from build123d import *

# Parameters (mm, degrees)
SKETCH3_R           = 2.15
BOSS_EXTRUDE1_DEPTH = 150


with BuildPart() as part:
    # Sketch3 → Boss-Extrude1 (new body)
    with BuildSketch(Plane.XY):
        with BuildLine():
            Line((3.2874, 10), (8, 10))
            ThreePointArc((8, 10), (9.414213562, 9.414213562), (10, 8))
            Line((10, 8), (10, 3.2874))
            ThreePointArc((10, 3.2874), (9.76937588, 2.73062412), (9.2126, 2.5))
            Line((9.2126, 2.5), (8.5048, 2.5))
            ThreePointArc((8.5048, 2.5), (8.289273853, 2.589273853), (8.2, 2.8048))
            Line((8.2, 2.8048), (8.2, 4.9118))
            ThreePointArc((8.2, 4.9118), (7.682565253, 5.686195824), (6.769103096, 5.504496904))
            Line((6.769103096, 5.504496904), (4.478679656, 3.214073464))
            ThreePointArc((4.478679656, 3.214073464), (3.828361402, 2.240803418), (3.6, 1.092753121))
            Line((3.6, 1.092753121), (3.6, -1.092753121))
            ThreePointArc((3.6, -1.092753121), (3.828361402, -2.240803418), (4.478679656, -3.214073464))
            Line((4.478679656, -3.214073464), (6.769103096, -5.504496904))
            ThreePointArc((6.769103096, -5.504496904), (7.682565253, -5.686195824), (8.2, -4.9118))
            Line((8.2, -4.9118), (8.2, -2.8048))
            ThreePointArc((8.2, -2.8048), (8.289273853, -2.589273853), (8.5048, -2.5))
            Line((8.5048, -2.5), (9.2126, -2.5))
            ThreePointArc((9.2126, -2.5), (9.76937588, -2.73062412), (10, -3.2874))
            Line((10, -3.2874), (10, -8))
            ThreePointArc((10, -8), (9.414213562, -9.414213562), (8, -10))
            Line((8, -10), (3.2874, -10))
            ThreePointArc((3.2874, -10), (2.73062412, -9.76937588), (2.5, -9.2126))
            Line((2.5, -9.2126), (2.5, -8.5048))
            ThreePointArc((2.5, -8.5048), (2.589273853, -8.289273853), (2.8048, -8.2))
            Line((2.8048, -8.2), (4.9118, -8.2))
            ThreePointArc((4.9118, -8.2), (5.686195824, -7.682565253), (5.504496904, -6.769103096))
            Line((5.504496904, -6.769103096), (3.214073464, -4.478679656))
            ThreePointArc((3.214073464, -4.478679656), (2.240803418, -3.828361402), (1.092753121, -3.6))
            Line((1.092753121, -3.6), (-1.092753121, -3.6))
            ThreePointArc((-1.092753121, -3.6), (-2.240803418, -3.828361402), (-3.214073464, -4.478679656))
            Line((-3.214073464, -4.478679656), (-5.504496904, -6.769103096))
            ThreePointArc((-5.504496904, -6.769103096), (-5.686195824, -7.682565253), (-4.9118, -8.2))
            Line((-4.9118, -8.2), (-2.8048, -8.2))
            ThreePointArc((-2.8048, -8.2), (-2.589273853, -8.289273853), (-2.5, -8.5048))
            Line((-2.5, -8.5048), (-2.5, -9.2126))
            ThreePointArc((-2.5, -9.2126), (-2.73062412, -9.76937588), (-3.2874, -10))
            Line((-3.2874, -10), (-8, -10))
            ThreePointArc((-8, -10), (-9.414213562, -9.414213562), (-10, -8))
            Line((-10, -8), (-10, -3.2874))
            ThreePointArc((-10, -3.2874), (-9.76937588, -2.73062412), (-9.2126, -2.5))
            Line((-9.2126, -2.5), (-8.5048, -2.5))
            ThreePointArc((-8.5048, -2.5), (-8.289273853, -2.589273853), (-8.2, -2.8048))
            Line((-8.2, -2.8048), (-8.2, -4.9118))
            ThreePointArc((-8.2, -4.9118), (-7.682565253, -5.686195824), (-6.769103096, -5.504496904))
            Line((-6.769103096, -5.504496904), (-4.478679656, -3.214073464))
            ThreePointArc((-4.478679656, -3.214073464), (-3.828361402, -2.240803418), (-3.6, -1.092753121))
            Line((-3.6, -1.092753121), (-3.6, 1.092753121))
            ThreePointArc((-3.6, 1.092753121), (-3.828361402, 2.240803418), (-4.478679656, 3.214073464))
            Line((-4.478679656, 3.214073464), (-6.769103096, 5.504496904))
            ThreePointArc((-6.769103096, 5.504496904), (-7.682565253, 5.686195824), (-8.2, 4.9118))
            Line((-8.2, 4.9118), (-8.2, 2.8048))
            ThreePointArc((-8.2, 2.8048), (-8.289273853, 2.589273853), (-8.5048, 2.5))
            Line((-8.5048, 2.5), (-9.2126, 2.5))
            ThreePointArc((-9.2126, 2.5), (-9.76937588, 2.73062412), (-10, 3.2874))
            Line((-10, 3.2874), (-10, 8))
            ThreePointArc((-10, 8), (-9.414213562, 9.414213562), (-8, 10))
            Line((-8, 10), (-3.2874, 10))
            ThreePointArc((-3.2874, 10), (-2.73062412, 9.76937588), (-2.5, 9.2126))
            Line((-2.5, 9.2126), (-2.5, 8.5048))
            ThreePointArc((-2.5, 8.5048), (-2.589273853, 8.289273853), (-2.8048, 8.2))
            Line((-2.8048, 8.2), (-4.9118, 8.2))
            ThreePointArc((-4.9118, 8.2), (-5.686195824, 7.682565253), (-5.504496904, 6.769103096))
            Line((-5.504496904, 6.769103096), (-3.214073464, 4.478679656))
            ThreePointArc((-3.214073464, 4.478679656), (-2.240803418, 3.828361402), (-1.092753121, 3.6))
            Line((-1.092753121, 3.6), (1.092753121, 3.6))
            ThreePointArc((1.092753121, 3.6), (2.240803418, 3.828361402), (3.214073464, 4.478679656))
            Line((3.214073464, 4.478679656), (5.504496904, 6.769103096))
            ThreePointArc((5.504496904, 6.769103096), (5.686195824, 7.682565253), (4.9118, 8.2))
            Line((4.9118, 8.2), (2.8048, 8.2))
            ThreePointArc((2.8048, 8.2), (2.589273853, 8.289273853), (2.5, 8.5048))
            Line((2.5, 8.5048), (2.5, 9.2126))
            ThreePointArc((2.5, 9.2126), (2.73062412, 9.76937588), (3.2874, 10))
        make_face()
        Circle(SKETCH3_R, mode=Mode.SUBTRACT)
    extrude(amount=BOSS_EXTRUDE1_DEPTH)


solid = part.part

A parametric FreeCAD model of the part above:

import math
import FreeCAD as App
import Part
import Sketcher

V = App.Vector

doc = App.newDocument("Part")
body = doc.addObject("PartDesign::Body", "Body")

# Sketch on XY plane
sketch1 = body.newObject("Sketcher::SketchObject", "Sketch")
sketch1.AttachmentSupport = (doc.getObject("XY_Plane"), [""])
sketch1.MapMode = "FlatFace"
sketch1.addGeometry([
    Part.LineSegment(V(8, 10, 0), V(3.29, 10, 0)),  # 0
    Part.ArcOfCircle(Part.Circle(V(3.29, 9.21, 0), V(0, 0, 1), 0.79), math.radians(90), math.radians(180)),  # 1
    Part.LineSegment(V(2.5, 9.21, 0), V(2.5, 8.5, 0)),  # 2
    Part.ArcOfCircle(Part.Circle(V(2.8, 8.5, 0), V(0, 0, 1), 0.3), math.radians(180), math.radians(270)),  # 3
    Part.LineSegment(V(2.8, 8.2, 0), V(4.91, 8.2, 0)),  # 4
    Part.ArcOfCircle(Part.Circle(V(4.91, 7.36, 0), V(0, 0, 1), 0.84), math.radians(-45), math.radians(90)),  # 5
    Part.LineSegment(V(5.5, 6.77, 0), V(3.21, 4.48, 0)),  # 6
    Part.ArcOfCircle(Part.Circle(V(1.09, 6.6, 0), V(0, 0, 1), 3), math.radians(-90), math.radians(-45)),  # 7
    Part.LineSegment(V(1.09, 3.6, 0), V(-1.09, 3.6, 0)),  # 8
    Part.ArcOfCircle(Part.Circle(V(-1.09, 6.6, 0), V(0, 0, 1), 3), math.radians(-135), math.radians(-90)),  # 9
    Part.LineSegment(V(-3.21, 4.48, 0), V(-5.5, 6.77, 0)),  # 10
    Part.ArcOfCircle(Part.Circle(V(-4.91, 7.36, 0), V(0, 0, 1), 0.84), math.radians(90), math.radians(225)),  # 11
    Part.LineSegment(V(-4.91, 8.2, 0), V(-2.8, 8.2, 0)),  # 12
    Part.ArcOfCircle(Part.Circle(V(-2.8, 8.5, 0), V(0, 0, 1), 0.3), math.radians(-90), math.radians(0)),  # 13
    Part.LineSegment(V(-2.5, 8.5, 0), V(-2.5, 9.21, 0)),  # 14
    Part.ArcOfCircle(Part.Circle(V(-3.29, 9.21, 0), V(0, 0, 1), 0.79), math.radians(0), math.radians(90)),  # 15
    Part.LineSegment(V(-3.29, 10, 0), V(-8, 10, 0)),  # 16
    Part.ArcOfCircle(Part.Circle(V(-8, 8, 0), V(0, 0, 1), 2), math.radians(90), math.radians(180)),  # 17
    Part.LineSegment(V(-10, 8, 0), V(-10, 3.29, 0)),  # 18
    Part.ArcOfCircle(Part.Circle(V(-9.21, 3.29, 0), V(0, 0, 1), 0.79), math.radians(180), math.radians(270)),  # 19
    Part.LineSegment(V(-9.21, 2.5, 0), V(-8.5, 2.5, 0)),  # 20
    Part.ArcOfCircle(Part.Circle(V(-8.5, 2.8, 0), V(0, 0, 1), 0.3), math.radians(-90), math.radians(0)),  # 21
    Part.LineSegment(V(-8.2, 2.8, 0), V(-8.2, 4.91, 0)),  # 22
    Part.ArcOfCircle(Part.Circle(V(-7.36, 4.91, 0), V(0, 0, 1), 0.84), math.radians(45), math.radians(180)),  # 23
    Part.LineSegment(V(-6.77, 5.5, 0), V(-4.48, 3.21, 0)),  # 24
    Part.ArcOfCircle(Part.Circle(V(-6.6, 1.09, 0), V(0, 0, 1), 3), math.radians(0), math.radians(45)),  # 25
    Part.LineSegment(V(-3.6, 1.09, 0), V(-3.6, -1.09, 0)),  # 26
    Part.ArcOfCircle(Part.Circle(V(-6.6, -1.09, 0), V(0, 0, 1), 3), math.radians(-45), math.radians(0)),  # 27
    Part.LineSegment(V(-4.48, -3.21, 0), V(-6.77, -5.5, 0)),  # 28
    Part.ArcOfCircle(Part.Circle(V(-7.36, -4.91, 0), V(0, 0, 1), 0.84), math.radians(180), math.radians(315)),  # 29
    Part.LineSegment(V(-8.2, -4.91, 0), V(-8.2, -2.8, 0)),  # 30
    Part.ArcOfCircle(Part.Circle(V(-8.5, -2.8, 0), V(0, 0, 1), 0.3), math.radians(0), math.radians(90)),  # 31
    Part.LineSegment(V(-8.5, -2.5, 0), V(-9.21, -2.5, 0)),  # 32
    Part.ArcOfCircle(Part.Circle(V(-9.21, -3.29, 0), V(0, 0, 1), 0.79), math.radians(90), math.radians(180)),  # 33
    Part.LineSegment(V(-10, -3.29, 0), V(-10, -8, 0)),  # 34
    Part.ArcOfCircle(Part.Circle(V(-8, -8, 0), V(0, 0, 1), 2), math.radians(-180), math.radians(-90)),  # 35
    Part.LineSegment(V(-8, -10, 0), V(-3.29, -10, 0)),  # 36
    Part.ArcOfCircle(Part.Circle(V(-3.29, -9.21, 0), V(0, 0, 1), 0.79), math.radians(-90), math.radians(0)),  # 37
    Part.LineSegment(V(-2.5, -9.21, 0), V(-2.5, -8.5, 0)),  # 38
    Part.ArcOfCircle(Part.Circle(V(-2.8, -8.5, 0), V(0, 0, 1), 0.3), math.radians(0), math.radians(90)),  # 39
    Part.LineSegment(V(-2.8, -8.2, 0), V(-4.91, -8.2, 0)),  # 40
    Part.ArcOfCircle(Part.Circle(V(-4.91, -7.36, 0), V(0, 0, 1), 0.84), math.radians(135), math.radians(270)),  # 41
    Part.LineSegment(V(-5.5, -6.77, 0), V(-3.21, -4.48, 0)),  # 42
    Part.ArcOfCircle(Part.Circle(V(-1.09, -6.6, 0), V(0, 0, 1), 3), math.radians(90), math.radians(135)),  # 43
    Part.LineSegment(V(-1.09, -3.6, 0), V(1.09, -3.6, 0)),  # 44
    Part.ArcOfCircle(Part.Circle(V(1.09, -6.6, 0), V(0, 0, 1), 3), math.radians(45), math.radians(90)),  # 45
    Part.LineSegment(V(3.21, -4.48, 0), V(5.5, -6.77, 0)),  # 46
    Part.ArcOfCircle(Part.Circle(V(4.91, -7.36, 0), V(0, 0, 1), 0.84), math.radians(-90), math.radians(45)),  # 47
    Part.LineSegment(V(4.91, -8.2, 0), V(2.8, -8.2, 0)),  # 48
    Part.ArcOfCircle(Part.Circle(V(2.8, -8.5, 0), V(0, 0, 1), 0.3), math.radians(90), math.radians(180)),  # 49
    Part.LineSegment(V(2.5, -8.5, 0), V(2.5, -9.21, 0)),  # 50
    Part.ArcOfCircle(Part.Circle(V(3.29, -9.21, 0), V(0, 0, 1), 0.79), math.radians(180), math.radians(270)),  # 51
    Part.LineSegment(V(3.29, -10, 0), V(8, -10, 0)),  # 52
    Part.ArcOfCircle(Part.Circle(V(8, -8, 0), V(0, 0, 1), 2), math.radians(-90), math.radians(0)),  # 53
    Part.LineSegment(V(10, -8, 0), V(10, -3.29, 0)),  # 54
    Part.ArcOfCircle(Part.Circle(V(9.21, -3.29, 0), V(0, 0, 1), 0.79), math.radians(0), math.radians(90)),  # 55
    Part.LineSegment(V(9.21, -2.5, 0), V(8.5, -2.5, 0)),  # 56
    Part.ArcOfCircle(Part.Circle(V(8.5, -2.8, 0), V(0, 0, 1), 0.3), math.radians(90), math.radians(180)),  # 57
    Part.LineSegment(V(8.2, -2.8, 0), V(8.2, -4.91, 0)),  # 58
    Part.ArcOfCircle(Part.Circle(V(7.36, -4.91, 0), V(0, 0, 1), 0.84), math.radians(-135), math.radians(0)),  # 59
    Part.LineSegment(V(6.77, -5.5, 0), V(4.48, -3.21, 0)),  # 60
    Part.ArcOfCircle(Part.Circle(V(6.6, -1.09, 0), V(0, 0, 1), 3), math.radians(180), math.radians(225)),  # 61
    Part.LineSegment(V(3.6, -1.09, 0), V(3.6, 1.09, 0)),  # 62
    Part.ArcOfCircle(Part.Circle(V(6.6, 1.09, 0), V(0, 0, 1), 3), math.radians(135), math.radians(180)),  # 63
    Part.LineSegment(V(4.48, 3.21, 0), V(6.77, 5.5, 0)),  # 64
    Part.ArcOfCircle(Part.Circle(V(7.36, 4.91, 0), V(0, 0, 1), 0.84), math.radians(0), math.radians(135)),  # 65
    Part.LineSegment(V(8.2, 4.91, 0), V(8.2, 2.8, 0)),  # 66
    Part.ArcOfCircle(Part.Circle(V(8.5, 2.8, 0), V(0, 0, 1), 0.3), math.radians(180), math.radians(270)),  # 67
    Part.LineSegment(V(8.5, 2.5, 0), V(9.21, 2.5, 0)),  # 68
    Part.ArcOfCircle(Part.Circle(V(9.21, 3.29, 0), V(0, 0, 1), 0.79), math.radians(-90), math.radians(0)),  # 69
    Part.LineSegment(V(10, 3.29, 0), V(10, 8, 0)),  # 70
    Part.ArcOfCircle(Part.Circle(V(8, 8, 0), V(0, 0, 1), 2), math.radians(0), math.radians(90)),  # 71
    Part.Circle(V(0, 0, 0), V(0, 0, 1), 2.15),  # 72
], False)
sketch1.addConstraint([
    Sketcher.Constraint("Tangent", 0, 2, 1, 1),
    Sketcher.Constraint("Tangent", 1, 2, 2, 1),
    Sketcher.Constraint("Tangent", 2, 2, 3, 1),
    Sketcher.Constraint("Tangent", 3, 2, 4, 1),
    Sketcher.Constraint("Tangent", 4, 2, 5, 2),
    Sketcher.Constraint("Tangent", 5, 1, 6, 1),
    Sketcher.Constraint("Tangent", 6, 2, 7, 2),
    Sketcher.Constraint("Tangent", 7, 1, 8, 1),
    Sketcher.Constraint("Tangent", 8, 2, 9, 2),
    Sketcher.Constraint("Tangent", 9, 1, 10, 1),
    Sketcher.Constraint("Tangent", 10, 2, 11, 2),
    Sketcher.Constraint("Tangent", 11, 1, 12, 1),
    Sketcher.Constraint("Tangent", 12, 2, 13, 1),
    Sketcher.Constraint("Tangent", 13, 2, 14, 1),
    Sketcher.Constraint("Tangent", 14, 2, 15, 1),
    Sketcher.Constraint("Tangent", 15, 2, 16, 1),
    Sketcher.Constraint("Tangent", 16, 2, 17, 1),
    Sketcher.Constraint("Tangent", 17, 2, 18, 1),
    Sketcher.Constraint("Tangent", 18, 2, 19, 1),
    Sketcher.Constraint("Tangent", 19, 2, 20, 1),
    Sketcher.Constraint("Tangent", 20, 2, 21, 1),
    Sketcher.Constraint("Tangent", 21, 2, 22, 1),
    Sketcher.Constraint("Tangent", 22, 2, 23, 2),
    Sketcher.Constraint("Tangent", 23, 1, 24, 1),
    Sketcher.Constraint("Tangent", 24, 2, 25, 2),
    Sketcher.Constraint("Tangent", 25, 1, 26, 1),
    Sketcher.Constraint("Tangent", 26, 2, 27, 2),
    Sketcher.Constraint("Tangent", 27, 1, 28, 1),
    Sketcher.Constraint("Tangent", 28, 2, 29, 2),
    Sketcher.Constraint("Tangent", 29, 1, 30, 1),
    Sketcher.Constraint("Tangent", 30, 2, 31, 1),
    Sketcher.Constraint("Tangent", 31, 2, 32, 1),
    Sketcher.Constraint("Tangent", 32, 2, 33, 1),
    Sketcher.Constraint("Tangent", 33, 2, 34, 1),
    Sketcher.Constraint("Tangent", 34, 2, 35, 1),
    Sketcher.Constraint("Tangent", 35, 2, 36, 1),
    Sketcher.Constraint("Tangent", 36, 2, 37, 1),
    Sketcher.Constraint("Tangent", 37, 2, 38, 1),
    Sketcher.Constraint("Tangent", 38, 2, 39, 1),
    Sketcher.Constraint("Tangent", 39, 2, 40, 1),
    Sketcher.Constraint("Tangent", 40, 2, 41, 2),
    Sketcher.Constraint("Tangent", 41, 1, 42, 1),
    Sketcher.Constraint("Tangent", 42, 2, 43, 2),
    Sketcher.Constraint("Tangent", 43, 1, 44, 1),
    Sketcher.Constraint("Tangent", 44, 2, 45, 2),
    Sketcher.Constraint("Tangent", 45, 1, 46, 1),
    Sketcher.Constraint("Tangent", 46, 2, 47, 2),
    Sketcher.Constraint("Tangent", 47, 1, 48, 1),
    Sketcher.Constraint("Tangent", 48, 2, 49, 1),
    Sketcher.Constraint("Tangent", 49, 2, 50, 1),
    Sketcher.Constraint("Tangent", 50, 2, 51, 1),
    Sketcher.Constraint("Tangent", 51, 2, 52, 1),
    Sketcher.Constraint("Tangent", 52, 2, 53, 1),
    Sketcher.Constraint("Tangent", 53, 2, 54, 1),
    Sketcher.Constraint("Tangent", 54, 2, 55, 1),
    Sketcher.Constraint("Tangent", 55, 2, 56, 1),
    Sketcher.Constraint("Tangent", 56, 2, 57, 1),
    Sketcher.Constraint("Tangent", 57, 2, 58, 1),
    Sketcher.Constraint("Tangent", 58, 2, 59, 2),
    Sketcher.Constraint("Tangent", 59, 1, 60, 1),
    Sketcher.Constraint("Tangent", 60, 2, 61, 2),
    Sketcher.Constraint("Tangent", 61, 1, 62, 1),
    Sketcher.Constraint("Tangent", 62, 2, 63, 2),
    Sketcher.Constraint("Tangent", 63, 1, 64, 1),
    Sketcher.Constraint("Tangent", 64, 2, 65, 2),
    Sketcher.Constraint("Tangent", 65, 1, 66, 1),
    Sketcher.Constraint("Tangent", 66, 2, 67, 1),
    Sketcher.Constraint("Tangent", 67, 2, 68, 1),
    Sketcher.Constraint("Tangent", 68, 2, 69, 1),
    Sketcher.Constraint("Tangent", 69, 2, 70, 1),
    Sketcher.Constraint("Tangent", 70, 2, 71, 1),
    Sketcher.Constraint("Tangent", 71, 2, 0, 1),
    Sketcher.Constraint("Horizontal", 0),
    Sketcher.Constraint("Vertical", 2),
    Sketcher.Constraint("Horizontal", 4),
    Sketcher.Constraint("Horizontal", 8),
    Sketcher.Constraint("Horizontal", 12),
    Sketcher.Constraint("Vertical", 14),
    Sketcher.Constraint("Horizontal", 16),
    Sketcher.Constraint("Vertical", 18),
    Sketcher.Constraint("Horizontal", 20),
    Sketcher.Constraint("Vertical", 22),
    Sketcher.Constraint("Vertical", 26),
    Sketcher.Constraint("Vertical", 30),
    Sketcher.Constraint("Horizontal", 32),
    Sketcher.Constraint("Vertical", 34),
    Sketcher.Constraint("Horizontal", 36),
    Sketcher.Constraint("Vertical", 38),
    Sketcher.Constraint("Horizontal", 40),
    Sketcher.Constraint("Horizontal", 44),
    Sketcher.Constraint("Horizontal", 48),
    Sketcher.Constraint("Vertical", 50),
    Sketcher.Constraint("Horizontal", 52),
    Sketcher.Constraint("Vertical", 54),
    Sketcher.Constraint("Horizontal", 56),
    Sketcher.Constraint("Vertical", 58),
    Sketcher.Constraint("Vertical", 62),
    Sketcher.Constraint("Vertical", 66),
    Sketcher.Constraint("Horizontal", 68),
    Sketcher.Constraint("Vertical", 70),
    Sketcher.Constraint("Coincident", 72, 3, -1, 1),
    Sketcher.Constraint("Equal", 7, 9),
    Sketcher.Constraint("Equal", 5, 11),
    Sketcher.Constraint("Equal", 3, 13),
    Sketcher.Constraint("Equal", 1, 15),
    Sketcher.Constraint("Equal", 15, 19),
    Sketcher.Constraint("Equal", 13, 21),
    Sketcher.Constraint("Equal", 11, 23),
    Sketcher.Constraint("Equal", 9, 25),
    Sketcher.Constraint("Equal", 25, 27),
    Sketcher.Constraint("Equal", 23, 29),
    Sketcher.Constraint("Equal", 21, 31),
    Sketcher.Constraint("Equal", 19, 33),
    Sketcher.Constraint("Equal", 17, 35),
    Sketcher.Constraint("Equal", 33, 37),
    Sketcher.Constraint("Equal", 31, 39),
    Sketcher.Constraint("Equal", 29, 41),
    Sketcher.Constraint("Equal", 27, 43),
    Sketcher.Constraint("Equal", 43, 45),
    Sketcher.Constraint("Equal", 41, 47),
    Sketcher.Constraint("Equal", 39, 49),
    Sketcher.Constraint("Equal", 37, 51),
    Sketcher.Constraint("Equal", 35, 53),
    Sketcher.Constraint("Equal", 51, 55),
    Sketcher.Constraint("Equal", 49, 57),
    Sketcher.Constraint("Equal", 47, 59),
    Sketcher.Constraint("Equal", 45, 61),
    Sketcher.Constraint("Equal", 61, 63),
    Sketcher.Constraint("Equal", 59, 65),
    Sketcher.Constraint("Equal", 57, 67),
    Sketcher.Constraint("Equal", 55, 69),
    Sketcher.Constraint("Equal", 53, 71),
    Sketcher.Constraint("Symmetric", 1, 3, 37, 3, -1, 1),
    Sketcher.Constraint("Symmetric", 5, 3, 41, 3, -1, 1),
    Sketcher.Constraint("Symmetric", 7, 3, 43, 3, -1, 1),
    Sketcher.Constraint("Symmetric", 11, 3, 47, 3, -1, 1),
    Sketcher.Constraint("Symmetric", 15, 3, 51, 3, -1, 1),
    Sketcher.Constraint("Symmetric", 19, 3, 55, 3, -1, 1),
    Sketcher.Constraint("Symmetric", 23, 3, 59, 3, -1, 1),
    Sketcher.Constraint("Symmetric", 25, 3, 61, 3, -1, 1),
    Sketcher.Constraint("Symmetric", 29, 3, 65, 3, -1, 1),
    Sketcher.Constraint("Symmetric", 33, 3, 69, 3, -1, 1),
    Sketcher.Constraint("Symmetric", 5, 3, 11, 3, -2),
    Sketcher.Constraint("Symmetric", 1, 3, 15, 3, -2),
    Sketcher.Constraint("Symmetric", 33, 3, 55, 3, -2),
    Sketcher.Constraint("Symmetric", 29, 3, 59, 3, -2),
    Sketcher.Constraint("Perpendicular", 6, 10),
    Sketcher.Constraint("Parallel", 10, 24),
    Sketcher.Constraint("Perpendicular", 24, 28),
    Sketcher.Constraint("Perpendicular", 42, 46),
    Sketcher.Constraint("Perpendicular", 60, 64),
    Sketcher.Constraint("Horizontal", 27, 3, 61, 3),
    Sketcher.Constraint("Equal", 68, 2),
    Sketcher.Constraint("Equal", 52, 18),
    Sketcher.Constraint("Equal", 48, 22),
    Sketcher.Constraint("Equal", 44, 26),
    Sketcher.Constraint("Equal", 10, 24),
    Sketcher.Constraint("Radius", 7, 3.0),
    Sketcher.Constraint("Radius", 17, 2.0),
    Sketcher.Constraint("Diameter", 72, 4.3),
    Sketcher.Constraint("DistanceX", 17, 3, -1, 1, 8.0),
    Sketcher.Constraint("DistanceY", -1, 1, 7, 3, 6.6),
    Sketcher.Constraint("DistanceX", -1, 1, 1, 2, 2.5),
    Sketcher.Constraint("DistanceY", -1, 1, 3, 2, 8.2),
    Sketcher.Constraint("Radius", 1, 0.7874),
    Sketcher.Constraint("Radius", 3, 0.3048),
    Sketcher.Constraint("Radius", 5, 0.8382),
    Sketcher.Constraint("DistanceX", 4, 1, 4, 2, 2.107),
])
pad1 = body.newObject("PartDesign::Pad", "Pad")
pad1.Profile = sketch1
pad1.Length = 150

doc.recompute()
